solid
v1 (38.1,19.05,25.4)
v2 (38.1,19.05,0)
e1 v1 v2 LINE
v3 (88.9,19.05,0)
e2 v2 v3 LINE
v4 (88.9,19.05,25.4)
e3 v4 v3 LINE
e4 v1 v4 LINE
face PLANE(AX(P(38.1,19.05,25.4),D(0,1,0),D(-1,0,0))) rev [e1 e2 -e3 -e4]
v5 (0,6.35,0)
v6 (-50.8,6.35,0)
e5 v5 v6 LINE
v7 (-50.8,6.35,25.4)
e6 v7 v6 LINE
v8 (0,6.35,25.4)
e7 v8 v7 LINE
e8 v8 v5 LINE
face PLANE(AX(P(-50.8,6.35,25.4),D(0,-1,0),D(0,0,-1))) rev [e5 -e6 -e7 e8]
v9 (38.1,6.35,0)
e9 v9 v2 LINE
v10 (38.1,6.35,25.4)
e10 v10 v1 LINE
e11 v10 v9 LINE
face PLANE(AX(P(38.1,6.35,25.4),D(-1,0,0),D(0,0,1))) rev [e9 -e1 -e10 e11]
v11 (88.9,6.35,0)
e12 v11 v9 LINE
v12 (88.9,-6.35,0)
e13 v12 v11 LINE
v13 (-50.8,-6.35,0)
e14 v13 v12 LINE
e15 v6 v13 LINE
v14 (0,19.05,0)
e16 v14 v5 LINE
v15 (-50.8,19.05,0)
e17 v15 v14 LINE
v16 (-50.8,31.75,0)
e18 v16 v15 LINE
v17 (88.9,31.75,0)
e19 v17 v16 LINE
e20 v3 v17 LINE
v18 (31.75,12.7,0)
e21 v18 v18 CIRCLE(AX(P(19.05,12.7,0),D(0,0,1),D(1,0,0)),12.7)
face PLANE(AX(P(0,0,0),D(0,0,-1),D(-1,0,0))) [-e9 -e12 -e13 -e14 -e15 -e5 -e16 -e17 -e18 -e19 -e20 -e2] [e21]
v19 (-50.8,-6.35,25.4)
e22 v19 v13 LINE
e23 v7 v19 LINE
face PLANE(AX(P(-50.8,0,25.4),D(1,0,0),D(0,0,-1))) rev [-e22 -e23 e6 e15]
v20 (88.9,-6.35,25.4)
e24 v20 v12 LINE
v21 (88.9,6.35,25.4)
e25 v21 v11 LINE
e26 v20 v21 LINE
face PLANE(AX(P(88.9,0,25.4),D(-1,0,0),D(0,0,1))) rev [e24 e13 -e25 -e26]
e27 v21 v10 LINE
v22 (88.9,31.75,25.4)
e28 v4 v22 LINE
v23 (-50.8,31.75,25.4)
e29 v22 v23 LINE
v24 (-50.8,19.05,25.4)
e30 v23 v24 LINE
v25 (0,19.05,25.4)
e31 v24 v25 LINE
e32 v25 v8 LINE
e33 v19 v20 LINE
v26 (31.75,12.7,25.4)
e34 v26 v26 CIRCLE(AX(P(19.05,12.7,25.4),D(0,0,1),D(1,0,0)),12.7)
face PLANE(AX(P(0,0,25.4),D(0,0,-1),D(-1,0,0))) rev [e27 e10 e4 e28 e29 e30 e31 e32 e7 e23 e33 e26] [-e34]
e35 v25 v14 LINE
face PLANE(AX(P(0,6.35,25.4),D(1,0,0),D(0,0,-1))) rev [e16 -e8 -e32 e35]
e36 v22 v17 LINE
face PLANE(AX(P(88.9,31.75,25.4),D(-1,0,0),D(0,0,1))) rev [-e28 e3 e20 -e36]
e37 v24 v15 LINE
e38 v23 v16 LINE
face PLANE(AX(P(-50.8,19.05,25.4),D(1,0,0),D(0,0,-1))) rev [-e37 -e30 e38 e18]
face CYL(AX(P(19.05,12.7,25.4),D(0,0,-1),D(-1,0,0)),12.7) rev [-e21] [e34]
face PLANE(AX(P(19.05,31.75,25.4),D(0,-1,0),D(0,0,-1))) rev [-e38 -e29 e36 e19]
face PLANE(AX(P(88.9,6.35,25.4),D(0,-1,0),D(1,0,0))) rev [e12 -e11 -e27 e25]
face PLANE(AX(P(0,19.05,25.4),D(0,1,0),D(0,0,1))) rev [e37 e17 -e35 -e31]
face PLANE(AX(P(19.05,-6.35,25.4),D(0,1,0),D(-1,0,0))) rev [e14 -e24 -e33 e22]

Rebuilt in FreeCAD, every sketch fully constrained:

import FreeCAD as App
import Part
import Sketcher
Q = App.Units.Quantity

doc = App.newDocument("Part")
params = doc.addObject("Spreadsheet::Sheet", "Params")
for row, (alias, value) in enumerate([
    ("sketch1_diameter", "1 in"),
    ("sketch1_width", "2 in"),
    ("sketch1_width2", "5.5 in"),
    ("sketch1_height", "0.5 in"),
    ("pad1_length", "1 in"),
], start=1):
    params.set(f"A{row}", alias)
    params.set(f"B{row}", "=" + value)
    params.setAlias(f"B{row}", alias)

body = doc.addObject("PartDesign::Body", "Body")

# Sketch on XY plane
sketch1 = body.newObject("Sketcher::SketchObject", "Sketch")
sketch1.AttachmentSupport = (doc.getObject("XY_Plane"), [""])
sketch1.MapMode = "FlatFace"
sketch1.addGeometry(Part.LineSegment(App.Vector(-51, 6, 0), App.Vector(-51, -6, 0)), False)
sketch1.addGeometry(Part.LineSegment(App.Vector(-51, -6, 0), App.Vector(89, -6, 0)), False)
sketch1.addGeometry(Part.LineSegment(App.Vector(89, -6, 0), App.Vector(89, 6, 0)), False)
sketch1.addGeometry(Part.LineSegment(App.Vector(89, 6, 0), App.Vector(38, 6, 0)), False)
sketch1.addGeometry(Part.LineSegment(App.Vector(38, 6, 0), App.Vector(38, 19, 0)), False)
sketch1.addGeometry(Part.LineSegment(App.Vector(38, 19, 0), App.Vector(89, 19, 0)), False)
sketch1.addGeometry(Part.LineSegment(App.Vector(89, 19, 0), App.Vector(89, 32, 0)), False)
sketch1.addGeometry(Part.LineSegment(App.Vector(89, 32, 0), App.Vector(-51, 32, 0)), False)
sketch1.addGeometry(Part.LineSegment(App.Vector(-51, 32, 0), App.Vector(-51, 19, 0)), False)
sketch1.addGeometry(Part.LineSegment(App.Vector(-51, 19, 0), App.Vector(0, 19, 0)), False)
sketch1.addGeometry(Part.LineSegment(App.Vector(0, 19, 0), App.Vector(0, 6, 0)), False)
sketch1.addGeometry(Part.LineSegment(App.Vector(0, 6, 0), App.Vector(-51, 6, 0)), False)
sketch1.addGeometry(Part.Circle(App.Vector(19, 13, 0), App.Vector(0, 0, 1), 13), False)
sketch1.addConstraint(Sketcher.Constraint("Coincident", 0, 2, 1, 1))
sketch1.addConstraint(Sketcher.Constraint("Coincident", 1, 2, 2, 1))
sketch1.addConstraint(Sketcher.Constraint("Coincident", 2, 2, 3, 1))
sketch1.addConstraint(Sketcher.Constraint("Coincident", 3, 2, 4, 1))
sketch1.addConstraint(Sketcher.Constraint("Coincident", 4, 2, 5, 1))
sketch1.addConstraint(Sketcher.Constraint("Coincident", 5, 2, 6, 1))
sketch1.addConstraint(Sketcher.Constraint("Coincident", 6, 2, 7, 1))
sketch1.addConstraint(Sketcher.Constraint("Coincident", 7, 2, 8, 1))
sketch1.addConstraint(Sketcher.Constraint("Coincident", 8, 2, 9, 1))
sketch1.addConstraint(Sketcher.Constraint("Coincident", 9, 2, 10, 1))
sketch1.addConstraint(Sketcher.Constraint("Coincident", 10, 2, 11, 1))
sketch1.addConstraint(Sketcher.Constraint("Coincident", 11, 2, 0, 1))
sketch1.addConstraint(Sketcher.Constraint("Vertical", 0))
sketch1.addConstraint(Sketcher.Constraint("Horizontal", 1))
sketch1.addConstraint(Sketcher.Constraint("Vertical", 2))
sketch1.addConstraint(Sketcher.Constraint("Horizontal", 3))
sketch1.addConstraint(Sketcher.Constraint("Vertical", 4))
sketch1.addConstraint(Sketcher.Constraint("Horizontal", 5))
sketch1.addConstraint(Sketcher.Constraint("Vertical", 6))
sketch1.addConstraint(Sketcher.Constraint("Horizontal", 7))
sketch1.addConstraint(Sketcher.Constraint("Vertical", 8))
sketch1.addConstraint(Sketcher.Constraint("Horizontal", 9))
sketch1.addConstraint(Sketcher.Constraint("Vertical", 10))
sketch1.addConstraint(Sketcher.Constraint("Horizontal", 11))
sketch1.addConstraint(Sketcher.Constraint("PointOnObject", 9, 2, -2))
sketch1.addConstraint(Sketcher.Constraint("Horizontal", 5, 2, 8, 2))
sketch1.addConstraint(Sketcher.Constraint("Horizontal", 3, 2, 10, 2))
sketch1.addConstraint(Sketcher.Constraint("Vertical", 2, 2, 5, 2))
sketch1.addConstraint(Sketcher.Constraint("Vertical", 0, 2, 7, 2))
sketch1.addConstraint(Sketcher.Constraint("Equal", 5, 9))
sketch1.addConstraint(Sketcher.Constraint("Equal", 2, 4))
sketch1.addConstraint(Sketcher.Constraint("Equal", 4, 6))
sketch1.addConstraint(Sketcher.Constraint("Diameter", 12, Q("1 in")))
sketch1.addConstraint(Sketcher.Constraint("DistanceX", 3, 2, 3, 1, Q("2 in")))
sketch1.addConstraint(Sketcher.Constraint("DistanceX", 1, 1, 1, 2, Q("5.5 in")))
sketch1.addConstraint(Sketcher.Constraint("DistanceY", 0, 2, 0, 1, Q("0.5 in")))
sketch1.addConstraint(Sketcher.Constraint("DistanceY", -1, 1, 12, 3, Q("0.5 in")))
sketch1.addConstraint(Sketcher.Constraint("DistanceX", -1, 1, 12, 3, Q("0.75 in")))
sketch1.addConstraint(Sketcher.Constraint("DistanceY", 0, 2, -1, 1, Q("0.25 in")))
sketch1.setExpression("Constraints[32]", "Params.sketch1_diameter")
sketch1.setExpression("Constraints[33]", "Params.sketch1_width")
sketch1.setExpression("Constraints[34]", "Params.sketch1_width2")
sketch1.setExpression("Constraints[35]", "Params.sketch1_height")
pad1 = body.newObject("PartDesign::Pad", "Pad")
pad1.Profile = sketch1
pad1.setExpression("Length", "Params.pad1_length")

doc.recompute()
